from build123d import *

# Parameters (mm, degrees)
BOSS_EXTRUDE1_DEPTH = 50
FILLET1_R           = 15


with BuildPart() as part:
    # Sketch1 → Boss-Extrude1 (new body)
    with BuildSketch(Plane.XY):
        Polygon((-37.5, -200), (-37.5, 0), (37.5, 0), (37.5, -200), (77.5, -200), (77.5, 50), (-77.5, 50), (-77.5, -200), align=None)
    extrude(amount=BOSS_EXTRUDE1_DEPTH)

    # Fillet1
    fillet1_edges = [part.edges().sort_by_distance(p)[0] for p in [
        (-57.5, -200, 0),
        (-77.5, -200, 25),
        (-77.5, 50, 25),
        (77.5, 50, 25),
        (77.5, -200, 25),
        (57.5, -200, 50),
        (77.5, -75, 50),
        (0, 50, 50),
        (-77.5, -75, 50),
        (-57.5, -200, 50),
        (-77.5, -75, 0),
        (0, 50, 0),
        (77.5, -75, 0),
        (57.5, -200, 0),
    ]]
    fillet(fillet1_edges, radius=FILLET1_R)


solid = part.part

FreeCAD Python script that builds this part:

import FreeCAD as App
import Part
import Sketcher


def edges_at(feature, points):
    """Names of the edges that pass closest to the given points."""
    edges = feature.Shape.Edges
    near = lambda p: min(range(len(edges)), key=lambda i: edges[i].distToShape(Part.Vertex(*p))[0])
    return sorted({f"Edge{near(p) + 1}" for p in points})

doc = App.newDocument("Part")
body = doc.addObject("PartDesign::Body", "Body")

sketch1 = body.newObject("Sketcher::SketchObject", "Sketch")
sketch1.AttachmentSupport = (doc.getObject("XY_Plane"), [""])
sketch1.MapMode = "FlatFace"
sketch1.addGeometry(Part.LineSegment(App.Vector(-38, -200, 0), App.Vector(-38, 0, 0)), False)
sketch1.addGeometry(Part.LineSegment(App.Vector(-38, 0, 0), App.Vector(38, 0, 0)), False)
sketch1.addGeometry(Part.LineSegment(App.Vector(38, 0, 0), App.Vector(38, -200, 0)), False)
sketch1.addGeometry(Part.LineSegment(App.Vector(38, -200, 0), App.Vector(78, -200, 0)), False)
sketch1.addGeometry(Part.LineSegment(App.Vector(78, -200, 0), App.Vector(78, 50, 0)), False)
sketch1.addGeometry(Part.LineSegment(App.Vector(78, 50, 0), App.Vector(-78, 50, 0)), False)
sketch1.addGeometry(Part.LineSegment(App.Vector(-78, 50, 0), App.Vector(-78, -200, 0)), False)
sketch1.addGeometry(Part.LineSegment(App.Vector(-78, -200, 0), App.Vector(-38, -200, 0)), False)
sketch1.addConstraint(Sketcher.Constraint("Coincident", 0, 2, 1, 1))
sketch1.addConstraint(Sketcher.Constraint("Coincident", 1, 2, 2, 1))
sketch1.addConstraint(Sketcher.Constraint("Coincident", 2, 2, 3, 1))
sketch1.addConstraint(Sketcher.Constraint("Coincident", 3, 2, 4, 1))
sketch1.addConstraint(Sketcher.Constraint("Coincident", 4, 2, 5, 1))
sketch1.addConstraint(Sketcher.Constraint("Coincident", 5, 2, 6, 1))
sketch1.addConstraint(Sketcher.Constraint("Coincident", 6, 2, 7, 1))
sketch1.addConstraint(Sketcher.Constraint("Coincident", 7, 2, 0, 1))
sketch1.addConstraint(Sketcher.Constraint("Vertical", 0))
sketch1.addConstraint(Sketcher.Constraint("Horizontal", 1))
sketch1.addConstraint(Sketcher.Constraint("Vertical", 2))
sketch1.addConstraint(Sketcher.Constraint("Horizontal", 3))
sketch1.addConstraint(Sketcher.Constraint("Vertical", 4))
sketch1.addConstraint(Sketcher.Constraint("Horizontal", 5))
sketch1.addConstraint(Sketcher.Constraint("Vertical", 6))
sketch1.addConstraint(Sketcher.Constraint("Horizontal", 7))
sketch1.addConstraint(Sketcher.Constraint("Symmetric", 0, 2, 1, 2, -1, 1))
sketch1.addConstraint(Sketcher.Constraint("Symmetric", 3, 2, 6, 2, -2))
sketch1.addConstraint(Sketcher.Constraint("DistanceX", 1, 1, 1, 2, 75.0))
sketch1.addConstraint(Sketcher.Constraint("DistanceX", 3, 1, 3, 2, 40.0))
sketch1.addConstraint(Sketcher.Constraint("DistanceY", 0, 1, 0, 2, 200.0))
sketch1.addConstraint(Sketcher.Constraint("DistanceY", 4, 1, 4, 2, 250.0))
pad1 = body.newObject("PartDesign::Pad", "Pad")
pad1.Profile = sketch1
pad1.Length = 50
doc.recompute()

fillet = body.newObject("PartDesign::Fillet", "Fillet")
fillet.Base = (pad1, edges_at(pad1, [
    (-57.5, -200, 0),
    (-77.5, -200, 25),
    (-77.5, 50, 25),
    (77.5, 50, 25),
    (77.5, -200, 25),
    (57.5, -200, 50),
    (77.5, -75, 50),
    (0, 50, 50),
    (-77.5, -75, 50),
    (-57.5, -200, 50),
    (-77.5, -75, 0),
    (0, 50, 0),
    (77.5, -75, 0),
    (57.5, -200, 0),
]))
fillet.Radius = 15

doc.recompute()
